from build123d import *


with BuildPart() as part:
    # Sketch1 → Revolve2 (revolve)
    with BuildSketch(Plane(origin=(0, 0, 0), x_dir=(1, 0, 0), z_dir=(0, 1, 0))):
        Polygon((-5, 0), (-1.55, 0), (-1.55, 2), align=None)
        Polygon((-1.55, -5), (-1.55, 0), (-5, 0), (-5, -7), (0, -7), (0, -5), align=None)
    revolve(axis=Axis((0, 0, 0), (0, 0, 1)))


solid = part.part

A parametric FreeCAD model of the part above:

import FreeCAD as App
import Part
import Sketcher
from FreeCAD import Vector


def add_polygon(sketch, points):
    """Adds a closed chain of lines whose ends are joined by coincident constraints."""
    first, n = sketch.GeometryCount, len(points)
    for a, b in zip(points, points[1:] + points[:1]):
        sketch.addGeometry(Part.LineSegment(App.Vector(*a, 0), App.Vector(*b, 0)), False)
    for i in range(n):
        sketch.addConstraint(Sketcher.Constraint("Coincident", first + i, 2, first + (i + 1) % n, 1))

doc = App.newDocument("Part")
body = doc.addObject("PartDesign::Body", "Body")

sketch1 = body.newObject("Sketcher::SketchObject", "Sketch")
sketch1.AttachmentSupport = (doc.getObject("XZ_Plane"), [""])
sketch1.MapMode = "FlatFace"
add_polygon(sketch1, [(-1.6, -2), (-5, 0), (-5, 7), (0, 7), (0, 5), (-1.6, 5)])
sketch1.addConstraint(Sketcher.Constraint("Vertical", 1))
sketch1.addConstraint(Sketcher.Constraint("Horizontal", 2))
sketch1.addConstraint(Sketcher.Constraint("Vertical", 3))
sketch1.addConstraint(Sketcher.Constraint("Horizontal", 4))
sketch1.addConstraint(Sketcher.Constraint("Vertical", 5))
sketch1.addConstraint(Sketcher.Constraint("PointOnObject", 0, 2, -1))
sketch1.addConstraint(Sketcher.Constraint("PointOnObject", 2, 2, -2))
sketch1.addConstraint(Sketcher.Constraint("Equal", 1, 5))
sketch1.addConstraint(Sketcher.Constraint("DistanceX", 2, 1, 2, 2, 5.0))
sketch1.addConstraint(Sketcher.Constraint("DistanceY", 1, 1, 1, 2, 7.0))
sketch1.addConstraint(Sketcher.Constraint("DistanceY", 3, 2, 3, 1, 2.0))
sketch1.addConstraint(Sketcher.Constraint("DistanceX", 4, 2, 4, 1, 1.55))
revolution = body.newObject("PartDesign::Revolution", "Revolution")
revolution.Profile = sketch1
revolution.ReferenceAxis = (sketch1, ["V_Axis"])
revolution.Angle = 360

doc.recompute()
